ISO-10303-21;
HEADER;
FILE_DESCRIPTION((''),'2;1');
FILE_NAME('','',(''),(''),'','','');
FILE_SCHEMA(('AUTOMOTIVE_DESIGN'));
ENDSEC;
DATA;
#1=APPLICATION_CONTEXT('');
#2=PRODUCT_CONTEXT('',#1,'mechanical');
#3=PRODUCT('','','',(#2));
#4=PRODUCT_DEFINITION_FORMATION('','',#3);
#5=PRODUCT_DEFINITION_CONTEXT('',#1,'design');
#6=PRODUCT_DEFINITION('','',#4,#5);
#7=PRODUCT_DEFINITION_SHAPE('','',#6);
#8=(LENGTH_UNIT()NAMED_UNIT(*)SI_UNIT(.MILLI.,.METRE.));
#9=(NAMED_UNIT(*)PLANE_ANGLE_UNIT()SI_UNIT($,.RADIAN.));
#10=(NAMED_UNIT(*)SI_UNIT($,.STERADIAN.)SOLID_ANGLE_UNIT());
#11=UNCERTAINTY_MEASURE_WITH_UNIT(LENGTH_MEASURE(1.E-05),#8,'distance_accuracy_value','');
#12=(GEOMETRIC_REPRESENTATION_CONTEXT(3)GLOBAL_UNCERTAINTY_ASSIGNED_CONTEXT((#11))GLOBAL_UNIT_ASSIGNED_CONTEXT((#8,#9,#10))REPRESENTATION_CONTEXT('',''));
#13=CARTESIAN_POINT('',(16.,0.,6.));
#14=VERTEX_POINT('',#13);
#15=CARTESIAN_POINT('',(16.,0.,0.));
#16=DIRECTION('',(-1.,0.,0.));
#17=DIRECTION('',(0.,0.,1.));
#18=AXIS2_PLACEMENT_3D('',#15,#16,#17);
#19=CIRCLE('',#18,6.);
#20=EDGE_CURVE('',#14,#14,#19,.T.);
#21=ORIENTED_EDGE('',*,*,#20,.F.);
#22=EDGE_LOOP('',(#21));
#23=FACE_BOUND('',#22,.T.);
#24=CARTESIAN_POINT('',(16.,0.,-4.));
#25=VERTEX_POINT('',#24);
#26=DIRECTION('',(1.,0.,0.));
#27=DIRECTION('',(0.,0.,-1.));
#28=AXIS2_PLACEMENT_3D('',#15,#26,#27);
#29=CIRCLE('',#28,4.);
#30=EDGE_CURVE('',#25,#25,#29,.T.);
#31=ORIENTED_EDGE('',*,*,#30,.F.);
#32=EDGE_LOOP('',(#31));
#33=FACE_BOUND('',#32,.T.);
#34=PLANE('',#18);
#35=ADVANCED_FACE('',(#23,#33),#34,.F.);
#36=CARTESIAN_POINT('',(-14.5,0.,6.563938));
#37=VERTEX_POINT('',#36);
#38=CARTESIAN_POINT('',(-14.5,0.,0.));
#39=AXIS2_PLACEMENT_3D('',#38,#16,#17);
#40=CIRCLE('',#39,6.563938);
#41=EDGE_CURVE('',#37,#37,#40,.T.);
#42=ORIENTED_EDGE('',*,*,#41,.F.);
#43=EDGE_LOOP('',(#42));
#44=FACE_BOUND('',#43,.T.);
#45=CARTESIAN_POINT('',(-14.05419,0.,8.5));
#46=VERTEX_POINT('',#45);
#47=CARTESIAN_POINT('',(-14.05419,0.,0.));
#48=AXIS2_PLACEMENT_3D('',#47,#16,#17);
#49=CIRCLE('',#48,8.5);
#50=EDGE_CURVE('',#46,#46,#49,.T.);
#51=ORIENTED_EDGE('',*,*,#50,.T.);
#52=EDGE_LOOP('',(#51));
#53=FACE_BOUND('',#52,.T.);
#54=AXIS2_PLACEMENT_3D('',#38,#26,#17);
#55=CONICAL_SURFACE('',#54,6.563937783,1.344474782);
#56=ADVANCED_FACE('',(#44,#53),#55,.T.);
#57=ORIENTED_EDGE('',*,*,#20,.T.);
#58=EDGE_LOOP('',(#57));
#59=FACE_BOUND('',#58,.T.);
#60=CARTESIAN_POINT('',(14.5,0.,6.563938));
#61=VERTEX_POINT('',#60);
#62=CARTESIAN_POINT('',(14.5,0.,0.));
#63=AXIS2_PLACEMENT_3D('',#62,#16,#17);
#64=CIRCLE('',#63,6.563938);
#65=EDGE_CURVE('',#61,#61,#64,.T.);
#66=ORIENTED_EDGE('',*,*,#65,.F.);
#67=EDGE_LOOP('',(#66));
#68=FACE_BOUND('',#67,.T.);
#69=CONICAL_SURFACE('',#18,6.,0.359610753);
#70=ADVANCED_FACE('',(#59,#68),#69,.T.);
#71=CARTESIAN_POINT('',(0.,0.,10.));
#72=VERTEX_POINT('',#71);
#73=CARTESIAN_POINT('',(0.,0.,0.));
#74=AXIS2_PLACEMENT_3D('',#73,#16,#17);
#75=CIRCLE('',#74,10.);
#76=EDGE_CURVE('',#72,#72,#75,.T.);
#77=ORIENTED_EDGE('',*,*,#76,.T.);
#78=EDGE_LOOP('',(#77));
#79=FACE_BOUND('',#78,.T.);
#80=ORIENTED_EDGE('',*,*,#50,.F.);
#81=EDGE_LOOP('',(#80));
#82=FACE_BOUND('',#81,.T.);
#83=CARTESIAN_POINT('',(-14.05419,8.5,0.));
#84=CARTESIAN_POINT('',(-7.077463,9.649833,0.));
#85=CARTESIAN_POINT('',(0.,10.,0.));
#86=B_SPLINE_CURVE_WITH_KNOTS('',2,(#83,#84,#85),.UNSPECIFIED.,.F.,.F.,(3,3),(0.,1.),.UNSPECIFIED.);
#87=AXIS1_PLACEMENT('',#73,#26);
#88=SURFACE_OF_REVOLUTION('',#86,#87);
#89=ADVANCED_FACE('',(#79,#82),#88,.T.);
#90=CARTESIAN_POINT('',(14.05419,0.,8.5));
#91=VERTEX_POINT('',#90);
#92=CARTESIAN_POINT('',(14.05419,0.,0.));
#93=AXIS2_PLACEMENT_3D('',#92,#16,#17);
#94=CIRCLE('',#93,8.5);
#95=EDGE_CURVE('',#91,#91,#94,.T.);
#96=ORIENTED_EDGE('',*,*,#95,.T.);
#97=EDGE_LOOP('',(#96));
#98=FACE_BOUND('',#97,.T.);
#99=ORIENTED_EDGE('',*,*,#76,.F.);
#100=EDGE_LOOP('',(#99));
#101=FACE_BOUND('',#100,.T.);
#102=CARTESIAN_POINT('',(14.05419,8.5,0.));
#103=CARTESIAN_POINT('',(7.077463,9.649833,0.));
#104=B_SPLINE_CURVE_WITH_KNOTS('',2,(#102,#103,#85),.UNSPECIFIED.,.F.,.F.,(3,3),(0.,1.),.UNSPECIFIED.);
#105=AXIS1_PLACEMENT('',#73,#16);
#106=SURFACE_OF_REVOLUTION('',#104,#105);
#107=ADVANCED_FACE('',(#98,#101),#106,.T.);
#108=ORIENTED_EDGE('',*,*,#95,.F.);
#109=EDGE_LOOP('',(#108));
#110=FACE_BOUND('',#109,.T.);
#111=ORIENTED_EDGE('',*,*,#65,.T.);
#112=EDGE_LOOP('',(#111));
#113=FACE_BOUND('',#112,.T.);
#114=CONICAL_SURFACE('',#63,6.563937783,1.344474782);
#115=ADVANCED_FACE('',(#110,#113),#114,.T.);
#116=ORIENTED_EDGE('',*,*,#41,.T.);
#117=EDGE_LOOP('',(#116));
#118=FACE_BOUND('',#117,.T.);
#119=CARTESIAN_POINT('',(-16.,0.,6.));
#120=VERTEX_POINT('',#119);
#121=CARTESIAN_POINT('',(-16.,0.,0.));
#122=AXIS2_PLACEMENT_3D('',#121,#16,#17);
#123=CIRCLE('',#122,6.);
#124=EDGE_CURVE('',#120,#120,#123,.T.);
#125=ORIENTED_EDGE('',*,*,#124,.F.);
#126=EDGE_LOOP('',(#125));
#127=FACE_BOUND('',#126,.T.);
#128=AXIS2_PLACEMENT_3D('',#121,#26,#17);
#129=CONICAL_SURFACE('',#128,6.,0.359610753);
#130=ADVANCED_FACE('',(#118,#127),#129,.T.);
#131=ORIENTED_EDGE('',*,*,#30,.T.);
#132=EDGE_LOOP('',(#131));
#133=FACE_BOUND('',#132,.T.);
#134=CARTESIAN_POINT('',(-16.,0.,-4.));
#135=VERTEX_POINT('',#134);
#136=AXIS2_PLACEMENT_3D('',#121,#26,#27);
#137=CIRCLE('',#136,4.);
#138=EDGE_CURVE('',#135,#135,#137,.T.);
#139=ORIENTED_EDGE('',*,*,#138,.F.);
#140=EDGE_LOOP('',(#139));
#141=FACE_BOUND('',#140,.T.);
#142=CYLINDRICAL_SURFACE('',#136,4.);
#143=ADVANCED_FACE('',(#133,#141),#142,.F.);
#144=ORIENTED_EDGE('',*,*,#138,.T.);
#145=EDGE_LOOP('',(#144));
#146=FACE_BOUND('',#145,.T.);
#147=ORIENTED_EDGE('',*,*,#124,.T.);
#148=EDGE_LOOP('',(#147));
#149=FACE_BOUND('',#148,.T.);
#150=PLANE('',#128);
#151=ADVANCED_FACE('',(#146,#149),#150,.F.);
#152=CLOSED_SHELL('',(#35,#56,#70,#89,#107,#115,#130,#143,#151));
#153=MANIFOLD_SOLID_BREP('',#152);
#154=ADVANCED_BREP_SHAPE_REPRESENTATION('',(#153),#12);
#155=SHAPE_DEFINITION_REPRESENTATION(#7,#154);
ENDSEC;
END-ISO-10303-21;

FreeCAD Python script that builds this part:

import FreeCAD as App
import Part
import Sketcher

doc = App.newDocument("Part")
body = doc.addObject("PartDesign::Body", "Body")

# Sketch on XY plane
sketch1 = doc.addObject("Sketcher::SketchObject", "Sketch")
body.addObject(sketch1)
sketch1.AttachmentSupport = (doc.XY_Plane, [""])
sketch1.MapMode = "FlatFace"
sketch1.addGeometry([
    Part.LineSegment(App.Vector(16, 0, 0), App.Vector(16, 6, 0)),  # 0
    Part.LineSegment(App.Vector(16, 6, 0), App.Vector(14.5, 6.563938, 0)),  # 1
    Part.LineSegment(App.Vector(14.5, 6.563938, 0), App.Vector(14.05419, 8.5, 0)),  # 2
    Part.BSplineCurve([App.Vector(0, 10, 0), App.Vector(7.077463, 9.649833, 0), App.Vector(14.05419, 8.5, 0)], [3, 3], [0, 1], False, 2, [1, 1, 1], False),  # 3
    Part.LineSegment(App.Vector(0, 10, 0), App.Vector(0, 0, 0)),  # 4
    Part.LineSegment(App.Vector(0, 0, 0), App.Vector(16, 0, 0)),  # 5
], False)
sketch1.addConstraint([
    Sketcher.Constraint("Block", 3),
    Sketcher.Constraint("Coincident", 0, 2, 1, 1),
    Sketcher.Constraint("Coincident", 1, 2, 2, 1),
    Sketcher.Constraint("Coincident", 2, 2, 3, 2),
    Sketcher.Constraint("Coincident", 3, 1, 4, 1),
    Sketcher.Constraint("Coincident", 4, 2, 5, 1),
    Sketcher.Constraint("Coincident", 5, 2, 0, 1),
    Sketcher.Constraint("Vertical", 0),
    Sketcher.Constraint("Vertical", 4),
    Sketcher.Constraint("Horizontal", 5),
    Sketcher.Constraint("PointOnObject", 5, 2, -1),
    Sketcher.Constraint("DistanceX", 5, 1, 5, 2, 16.0),
    Sketcher.Constraint("DistanceY", 0, 1, 0, 2, 6.0),
    Sketcher.Constraint("DistanceX", -1, 1, 1, 2, 14.5),
    Sketcher.Constraint("Distance", 1, 1.602506),
])
revolution = doc.addObject("PartDesign::Revolution", "Revolution")
body.addObject(revolution)
revolution.Profile = sketch1
revolution.ReferenceAxis = (sketch1, ["H_Axis"])
revolution.Angle = 360
doc.recompute()

mirrored = doc.addObject("PartDesign::Mirrored", "Mirrored")
body.addObject(mirrored)
mirrored.Originals = [revolution]
mirrored.MirrorPlane = (doc.YZ_Plane, [""])
body.Tip = mirrored

# Sketch on YZ plane
sketch2 = doc.addObject("Sketcher::SketchObject", "Sketch001")
body.addObject(sketch2)
sketch2.AttachmentSupport = (doc.YZ_Plane, [""])
sketch2.MapMode = "FlatFace"
sketch2.AttachmentOffset = App.Placement(App.Vector(0, 0, 16), App.Rotation())
sketch2.addGeometry(Part.Circle(App.Vector(0, 0, 0), App.Vector(0, 0, 1), 4), False)
sketch2.addConstraint([
    Sketcher.Constraint("Coincident", 0, 3, -1, 1),
    Sketcher.Constraint("Diameter", 0, 8.0),
])
pocket1 = doc.addObject("PartDesign::Pocket", "Pocket")
body.addObject(pocket1)
pocket1.Profile = sketch2
pocket1.Type = "ThroughAll"

doc.recompute()
